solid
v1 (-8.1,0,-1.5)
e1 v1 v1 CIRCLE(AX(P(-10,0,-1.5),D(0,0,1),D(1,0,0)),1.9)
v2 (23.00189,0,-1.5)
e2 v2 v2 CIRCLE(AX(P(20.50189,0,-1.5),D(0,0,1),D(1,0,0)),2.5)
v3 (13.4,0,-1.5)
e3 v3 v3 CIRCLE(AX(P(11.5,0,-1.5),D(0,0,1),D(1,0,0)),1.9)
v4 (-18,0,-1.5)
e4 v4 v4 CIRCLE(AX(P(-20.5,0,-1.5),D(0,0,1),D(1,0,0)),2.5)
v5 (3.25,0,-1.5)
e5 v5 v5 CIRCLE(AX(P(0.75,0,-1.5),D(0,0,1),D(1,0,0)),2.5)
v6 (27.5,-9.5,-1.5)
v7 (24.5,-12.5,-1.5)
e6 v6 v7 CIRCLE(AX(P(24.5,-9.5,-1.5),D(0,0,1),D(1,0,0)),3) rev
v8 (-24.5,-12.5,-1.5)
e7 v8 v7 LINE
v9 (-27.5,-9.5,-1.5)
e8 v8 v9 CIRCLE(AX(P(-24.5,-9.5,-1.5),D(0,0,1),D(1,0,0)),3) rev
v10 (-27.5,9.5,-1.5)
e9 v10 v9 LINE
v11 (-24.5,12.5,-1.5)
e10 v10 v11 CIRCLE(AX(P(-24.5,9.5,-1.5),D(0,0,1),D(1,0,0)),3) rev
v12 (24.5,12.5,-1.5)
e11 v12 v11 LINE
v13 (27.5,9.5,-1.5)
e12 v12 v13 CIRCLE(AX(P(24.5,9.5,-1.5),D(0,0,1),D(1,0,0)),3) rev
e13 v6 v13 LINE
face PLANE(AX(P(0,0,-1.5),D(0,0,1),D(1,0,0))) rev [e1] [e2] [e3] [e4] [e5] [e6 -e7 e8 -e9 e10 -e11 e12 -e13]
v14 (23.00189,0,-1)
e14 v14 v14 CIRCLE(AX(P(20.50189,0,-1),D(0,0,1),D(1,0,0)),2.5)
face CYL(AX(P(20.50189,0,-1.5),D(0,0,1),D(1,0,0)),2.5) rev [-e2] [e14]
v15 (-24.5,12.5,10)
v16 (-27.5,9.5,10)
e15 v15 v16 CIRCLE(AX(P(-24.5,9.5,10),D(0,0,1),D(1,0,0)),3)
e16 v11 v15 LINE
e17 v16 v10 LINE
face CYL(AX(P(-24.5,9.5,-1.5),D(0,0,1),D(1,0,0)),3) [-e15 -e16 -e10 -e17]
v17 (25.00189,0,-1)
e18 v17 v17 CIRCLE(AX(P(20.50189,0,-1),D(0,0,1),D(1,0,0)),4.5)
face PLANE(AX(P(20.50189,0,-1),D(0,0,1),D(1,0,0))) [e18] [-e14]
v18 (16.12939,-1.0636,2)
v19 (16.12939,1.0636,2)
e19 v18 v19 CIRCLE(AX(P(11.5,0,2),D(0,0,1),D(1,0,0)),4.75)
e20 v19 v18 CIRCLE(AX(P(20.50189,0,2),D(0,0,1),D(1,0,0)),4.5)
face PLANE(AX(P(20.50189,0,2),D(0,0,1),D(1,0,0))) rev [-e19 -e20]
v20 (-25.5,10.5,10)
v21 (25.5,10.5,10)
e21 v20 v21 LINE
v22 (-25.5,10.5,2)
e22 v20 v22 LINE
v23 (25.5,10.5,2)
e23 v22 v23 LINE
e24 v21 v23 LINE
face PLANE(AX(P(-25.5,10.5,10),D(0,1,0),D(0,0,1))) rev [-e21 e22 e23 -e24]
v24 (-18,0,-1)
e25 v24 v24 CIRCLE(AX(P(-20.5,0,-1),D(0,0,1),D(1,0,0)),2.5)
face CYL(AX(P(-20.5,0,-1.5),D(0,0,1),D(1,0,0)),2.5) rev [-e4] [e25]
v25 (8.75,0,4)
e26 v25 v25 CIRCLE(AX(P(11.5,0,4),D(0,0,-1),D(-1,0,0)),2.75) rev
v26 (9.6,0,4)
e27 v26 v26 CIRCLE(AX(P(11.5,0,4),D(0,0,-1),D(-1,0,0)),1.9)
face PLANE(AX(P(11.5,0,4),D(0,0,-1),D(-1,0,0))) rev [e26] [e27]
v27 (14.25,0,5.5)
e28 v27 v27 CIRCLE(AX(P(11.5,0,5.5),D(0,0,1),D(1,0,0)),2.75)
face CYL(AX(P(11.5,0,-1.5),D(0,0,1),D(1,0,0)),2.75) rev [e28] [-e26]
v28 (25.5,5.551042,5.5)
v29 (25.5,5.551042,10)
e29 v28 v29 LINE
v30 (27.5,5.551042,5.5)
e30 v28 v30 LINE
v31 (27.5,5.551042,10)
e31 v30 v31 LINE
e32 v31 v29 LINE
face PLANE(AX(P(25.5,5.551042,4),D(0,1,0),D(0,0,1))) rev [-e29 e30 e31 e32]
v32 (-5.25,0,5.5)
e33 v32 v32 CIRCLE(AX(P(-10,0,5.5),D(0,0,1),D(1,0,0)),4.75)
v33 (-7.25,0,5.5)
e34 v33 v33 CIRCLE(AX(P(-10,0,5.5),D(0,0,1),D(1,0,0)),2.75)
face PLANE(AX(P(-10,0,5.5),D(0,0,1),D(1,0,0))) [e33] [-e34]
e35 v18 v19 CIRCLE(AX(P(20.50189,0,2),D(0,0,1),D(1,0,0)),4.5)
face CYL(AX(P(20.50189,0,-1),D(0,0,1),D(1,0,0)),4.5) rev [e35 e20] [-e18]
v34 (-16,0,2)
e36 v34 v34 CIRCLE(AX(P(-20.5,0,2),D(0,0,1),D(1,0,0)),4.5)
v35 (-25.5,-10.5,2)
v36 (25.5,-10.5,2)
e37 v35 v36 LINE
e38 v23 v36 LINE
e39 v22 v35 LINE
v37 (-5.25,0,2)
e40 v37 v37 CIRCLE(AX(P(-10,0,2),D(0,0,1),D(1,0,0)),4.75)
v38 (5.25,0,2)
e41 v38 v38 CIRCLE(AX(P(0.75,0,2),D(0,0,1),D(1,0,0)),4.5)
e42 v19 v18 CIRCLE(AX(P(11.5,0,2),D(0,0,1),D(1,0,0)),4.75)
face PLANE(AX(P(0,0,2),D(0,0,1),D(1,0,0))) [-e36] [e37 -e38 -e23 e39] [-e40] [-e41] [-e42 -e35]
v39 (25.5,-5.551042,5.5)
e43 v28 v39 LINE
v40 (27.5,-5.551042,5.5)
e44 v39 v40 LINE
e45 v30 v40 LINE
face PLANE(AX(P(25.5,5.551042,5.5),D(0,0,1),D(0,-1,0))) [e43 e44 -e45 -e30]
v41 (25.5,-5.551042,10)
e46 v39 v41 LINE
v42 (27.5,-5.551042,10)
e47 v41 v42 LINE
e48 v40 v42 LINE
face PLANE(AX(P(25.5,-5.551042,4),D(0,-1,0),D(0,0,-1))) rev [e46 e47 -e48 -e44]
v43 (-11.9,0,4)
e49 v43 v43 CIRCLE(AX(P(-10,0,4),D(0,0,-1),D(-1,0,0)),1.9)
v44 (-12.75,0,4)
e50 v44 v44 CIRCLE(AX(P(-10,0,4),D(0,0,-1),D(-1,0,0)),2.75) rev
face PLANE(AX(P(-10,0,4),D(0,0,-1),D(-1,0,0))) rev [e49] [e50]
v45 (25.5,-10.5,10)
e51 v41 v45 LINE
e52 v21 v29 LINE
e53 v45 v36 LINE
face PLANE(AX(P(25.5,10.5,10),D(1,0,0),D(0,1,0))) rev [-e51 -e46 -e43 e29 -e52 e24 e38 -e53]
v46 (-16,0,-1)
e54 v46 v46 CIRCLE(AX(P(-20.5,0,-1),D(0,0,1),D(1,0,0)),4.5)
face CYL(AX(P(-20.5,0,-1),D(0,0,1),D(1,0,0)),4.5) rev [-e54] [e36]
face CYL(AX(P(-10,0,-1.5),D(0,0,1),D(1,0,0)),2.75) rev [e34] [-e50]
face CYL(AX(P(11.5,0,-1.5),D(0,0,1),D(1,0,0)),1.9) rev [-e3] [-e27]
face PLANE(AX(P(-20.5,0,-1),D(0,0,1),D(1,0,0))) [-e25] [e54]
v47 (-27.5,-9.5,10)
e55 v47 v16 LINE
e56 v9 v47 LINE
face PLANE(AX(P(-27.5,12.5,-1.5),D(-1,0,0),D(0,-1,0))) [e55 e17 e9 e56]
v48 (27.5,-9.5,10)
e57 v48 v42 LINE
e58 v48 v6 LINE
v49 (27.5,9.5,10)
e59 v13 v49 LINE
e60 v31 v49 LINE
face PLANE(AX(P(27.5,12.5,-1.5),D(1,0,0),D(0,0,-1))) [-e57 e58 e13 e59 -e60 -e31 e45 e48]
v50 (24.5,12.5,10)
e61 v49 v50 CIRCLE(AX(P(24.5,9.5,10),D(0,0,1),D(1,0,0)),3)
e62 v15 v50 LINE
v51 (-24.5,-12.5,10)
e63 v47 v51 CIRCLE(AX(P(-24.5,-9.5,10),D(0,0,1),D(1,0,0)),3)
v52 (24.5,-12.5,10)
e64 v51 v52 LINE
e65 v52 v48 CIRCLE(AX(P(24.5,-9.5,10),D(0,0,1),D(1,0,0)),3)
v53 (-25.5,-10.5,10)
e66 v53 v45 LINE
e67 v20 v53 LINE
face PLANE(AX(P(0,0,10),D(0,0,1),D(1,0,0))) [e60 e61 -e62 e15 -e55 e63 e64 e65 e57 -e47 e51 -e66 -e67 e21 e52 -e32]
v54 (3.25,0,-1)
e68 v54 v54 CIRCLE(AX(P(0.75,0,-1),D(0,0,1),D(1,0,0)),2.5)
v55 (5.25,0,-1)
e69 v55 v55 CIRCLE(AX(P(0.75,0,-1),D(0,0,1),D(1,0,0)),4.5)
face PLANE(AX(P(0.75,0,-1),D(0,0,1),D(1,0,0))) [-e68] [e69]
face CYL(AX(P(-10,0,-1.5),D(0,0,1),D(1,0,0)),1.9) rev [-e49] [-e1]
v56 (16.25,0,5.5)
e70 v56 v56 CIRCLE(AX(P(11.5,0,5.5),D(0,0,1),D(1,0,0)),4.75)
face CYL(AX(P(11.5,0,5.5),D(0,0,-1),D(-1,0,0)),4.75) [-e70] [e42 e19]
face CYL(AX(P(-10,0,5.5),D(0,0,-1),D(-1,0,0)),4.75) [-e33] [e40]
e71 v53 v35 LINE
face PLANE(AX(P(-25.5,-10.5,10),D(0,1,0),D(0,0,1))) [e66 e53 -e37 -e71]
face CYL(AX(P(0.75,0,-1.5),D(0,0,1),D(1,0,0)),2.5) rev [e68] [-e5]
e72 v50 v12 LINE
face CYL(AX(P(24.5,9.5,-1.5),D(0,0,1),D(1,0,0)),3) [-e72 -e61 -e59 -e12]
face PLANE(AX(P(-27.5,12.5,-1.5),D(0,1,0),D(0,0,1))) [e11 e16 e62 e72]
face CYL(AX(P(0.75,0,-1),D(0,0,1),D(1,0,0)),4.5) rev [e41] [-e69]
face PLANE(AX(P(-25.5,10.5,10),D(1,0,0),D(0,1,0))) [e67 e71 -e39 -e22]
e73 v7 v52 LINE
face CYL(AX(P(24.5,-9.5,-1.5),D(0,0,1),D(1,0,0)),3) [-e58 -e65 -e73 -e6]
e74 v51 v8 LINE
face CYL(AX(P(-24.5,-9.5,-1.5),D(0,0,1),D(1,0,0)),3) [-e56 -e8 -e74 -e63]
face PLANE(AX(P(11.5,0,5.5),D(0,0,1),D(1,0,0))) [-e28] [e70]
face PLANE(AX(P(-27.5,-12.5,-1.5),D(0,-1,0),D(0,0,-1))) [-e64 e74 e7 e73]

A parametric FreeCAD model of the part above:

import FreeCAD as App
import Part
import Sketcher
Q = App.Units.Quantity


def edges_at(feature, points):
    """Names of the edges that pass closest to the given points."""
    edges = feature.Shape.Edges
    near = lambda p: min(range(len(edges)), key=lambda i: edges[i].distToShape(Part.Vertex(*p))[0])
    return sorted({f"Edge{near(p) + 1}" for p in points})


def add_polygon(sketch, points):
    """Adds a closed chain of lines whose ends are joined by coincident constraints."""
    first, n = sketch.GeometryCount, len(points)
    for a, b in zip(points, points[1:] + points[:1]):
        sketch.addGeometry(Part.LineSegment(App.Vector(*a, 0), App.Vector(*b, 0)), False)
    for i in range(n):
        sketch.addConstraint(Sketcher.Constraint("Coincident", first + i, 2, first + (i + 1) % n, 1))

doc = App.newDocument("Part")
params = doc.addObject("Spreadsheet::Sheet", "Params")
for row, (alias, value) in enumerate([
    ("sketch1_diameter", "5.5 mm"),
    ("sketch1_width", "55 mm"),
    ("sketch1_height", "25 mm"),
    ("pad1_length", "2 mm"),
    ("pad1_length2", "1.5 mm"),
    ("sketch2_diameter", "9.5 mm"),
    ("sketch2_diameter2", "5.5 mm"),
    ("pad2_length", "3.5 mm"),
    ("sketch3_width", "55 mm"),
    ("sketch3_width2", "51 mm"),
    ("sketch3_height", "25 mm"),
    ("sketch3_height2", "21 mm"),
    ("pad3_length", "8 mm"),
    ("fillet_radius", "3 mm"),
    ("sketch4_width", "2 mm"),
    ("pocket1_length", "6 mm"),
    ("sketch5_diameter", "9 mm"),
    ("pocket2_length", "3 mm"),
    ("sketch6_diameter", "5.5 mm"),
    ("pad4_length", "5.5 mm"),
    ("sketch7_diameter", "3.8 mm"),
    ("sketch8_diameter", "5 mm"),
    ("sketch9_height", "1.5 mm"),
    ("pad5_length", "2 mm"),
], start=1):
    params.set(f"A{row}", alias)
    params.set(f"B{row}", "=" + value)
    params.setAlias(f"B{row}", alias)

body = doc.addObject("PartDesign::Body", "Body")

# Sketch on XY plane
sketch1 = doc.addObject("Sketcher::SketchObject", "Sketch")
body.addObject(sketch1)
sketch1.AttachmentSupport = (doc.XY_Plane, [""])
sketch1.MapMode = "FlatFace"
add_polygon(sketch1, [(-27.5, 12.5), (-27.5, -12.5), (27.5, -12.5), (27.5, 12.5)])  # lines 0-3
sketch1.addGeometry(Part.Circle(App.Vector(-10, 0, 0), App.Vector(0, 0, 1), 2.8), False)  # 4
sketch1.addGeometry(Part.Circle(App.Vector(11.5, 0, 0), App.Vector(0, 0, 1), 2.8), False)  # 5
sketch1.addConstraint([
    Sketcher.Constraint("Vertical", 0),
    Sketcher.Constraint("Horizontal", 1),
    Sketcher.Constraint("Vertical", 2),
    Sketcher.Constraint("Horizontal", 3),
    Sketcher.Constraint("Equal", 4, 5),
    Sketcher.Constraint("Symmetric", 0, 2, 2, 2, -1, 1),
    Sketcher.Constraint("PointOnObject", 4, 3, -1),
    Sketcher.Constraint("PointOnObject", 5, 3, -1),
    Sketcher.Constraint("Diameter", 4, Q("5.5 mm")),
    Sketcher.Constraint("DistanceX", 1, 1, 1, 2, Q("55 mm")),
    Sketcher.Constraint("DistanceY", 0, 2, 0, 1, Q("25 mm")),
    Sketcher.Constraint("DistanceX", 4, 3, -1, 1, Q("10 mm")),
    Sketcher.Constraint("DistanceX", 0, 2, 5, 3, Q("39 mm")),
])
sketch1.setExpression("Constraints[12]", "Params.sketch1_diameter")
sketch1.setExpression("Constraints[13]", "Params.sketch1_width")
sketch1.setExpression("Constraints[14]", "Params.sketch1_height")
pad1 = doc.addObject("PartDesign::Pad", "Pad")
body.addObject(pad1)
pad1.Profile = sketch1
pad1.Type = "TwoLengths"
pad1.setExpression("Length", "Params.pad1_length")
pad1.setExpression("Length2", "Params.pad1_length2")

# Sketch on XY plane
sketch2 = doc.addObject("Sketcher::SketchObject", "Sketch001")
body.addObject(sketch2)
sketch2.AttachmentSupport = (doc.XY_Plane, [""])
sketch2.MapMode = "FlatFace"
sketch2.AttachmentOffset = App.Placement(App.Vector(0, 0, 2), App.Rotation())
sketch2.addGeometry([
    Part.Circle(App.Vector(-10, 0, 0), App.Vector(0, 0, 1), 4.8),
    Part.Circle(App.Vector(-10, 0, 0), App.Vector(0, 0, 1), 2.8),
    Part.Circle(App.Vector(11.5, 0, 0), App.Vector(0, 0, 1), 4.8),
    Part.Circle(App.Vector(11.5, 0, 0), App.Vector(0, 0, 1), 2.8),
], False)
sketch2.addConstraint([
    Sketcher.Constraint("Coincident", 1, 3, 0, 3),
    Sketcher.Constraint("Coincident", 3, 3, 2, 3),
    Sketcher.Constraint("Equal", 0, 2),
    Sketcher.Constraint("Equal", 1, 3),
    Sketcher.Constraint("PointOnObject", 0, 3, -1),
    Sketcher.Constraint("PointOnObject", 2, 3, -1),
    Sketcher.Constraint("Diameter", 0, Q("9.5 mm")),
    Sketcher.Constraint("Diameter", 1, Q("5.5 mm")),
    Sketcher.Constraint("DistanceX", 0, 3, -1, 1, Q("10 mm")),
    Sketcher.Constraint("DistanceX", -1, 1, 2, 3, Q("11.5 mm")),
])
sketch2.setExpression("Constraints[6]", "Params.sketch2_diameter")
sketch2.setExpression("Constraints[7]", "Params.sketch2_diameter2")
pad2 = doc.addObject("PartDesign::Pad", "Pad001")
body.addObject(pad2)
pad2.Profile = sketch2
pad2.setExpression("Length", "Params.pad2_length")

# Sketch on XY plane
sketch3 = doc.addObject("Sketcher::SketchObject", "Sketch002")
body.addObject(sketch3)
sketch3.AttachmentSupport = (doc.XY_Plane, [""])
sketch3.MapMode = "FlatFace"
sketch3.AttachmentOffset = App.Placement(App.Vector(0, 0, 2), App.Rotation())
add_polygon(sketch3, [(-28, 12), (-28, -12), (28, -12), (28, 12)])  # lines 0-3
add_polygon(sketch3, [(26, -10), (-26, -10), (-26, 10), (26, 10)])  # lines 4-7
sketch3.addConstraint([
    Sketcher.Constraint("Vertical", 0),
    Sketcher.Constraint("Horizontal", 1),
    Sketcher.Constraint("Vertical", 2),
    Sketcher.Constraint("Horizontal", 3),
    Sketcher.Constraint("Horizontal", 4),
    Sketcher.Constraint("Vertical", 5),
    Sketcher.Constraint("Horizontal", 6),
    Sketcher.Constraint("Vertical", 7),
    Sketcher.Constraint("Symmetric", 0, 2, 2, 2, -1, 1),
    Sketcher.Constraint("Symmetric", 4, 2, 6, 2, -1, 1),
    Sketcher.Constraint("DistanceX", 1, 1, 1, 2, Q("55 mm")),
    Sketcher.Constraint("DistanceX", 4, 2, 4, 1, Q("51 mm")),
    Sketcher.Constraint("DistanceY", 0, 2, 0, 1, Q("25 mm")),
    Sketcher.Constraint("DistanceY", 5, 1, 5, 2, Q("21 mm")),
])
sketch3.setExpression("Constraints[18]", "Params.sketch3_width")
sketch3.setExpression("Constraints[19]", "Params.sketch3_width2")
sketch3.setExpression("Constraints[20]", "Params.sketch3_height")
sketch3.setExpression("Constraints[21]", "Params.sketch3_height2")
pad3 = doc.addObject("PartDesign::Pad", "Pad002")
body.addObject(pad3)
pad3.Profile = sketch3
pad3.setExpression("Length", "Params.pad3_length")
doc.recompute()

fillet = doc.addObject("PartDesign::Fillet", "Fillet")
body.addObject(fillet)
fillet.Base = (pad3, edges_at(pad3, [
    (27.5, -12.5, 4.25),
    (-27.5, -12.5, 4.25),
    (-27.5, 12.5, 4.25),
    (27.5, 12.5, 4.25),
]))
fillet.setExpression("Radius", "Params.fillet_radius")

# Sketch on XY plane
sketch4 = doc.addObject("Sketcher::SketchObject", "Sketch003")
body.addObject(sketch4)
sketch4.AttachmentSupport = (doc.XY_Plane, [""])
sketch4.MapMode = "FlatFace"
sketch4.AttachmentOffset = App.Placement(App.Vector(0, 0, 10), App.Rotation())
add_polygon(sketch4, [(25.5, 5.6), (25.5, -5.6), (27.5, -5.6), (27.5, 5.6)])  # lines 0-3
sketch4.addConstraint([
    Sketcher.Constraint("Vertical", 0),
    Sketcher.Constraint("Horizontal", 1),
    Sketcher.Constraint("Vertical", 2),
    Sketcher.Constraint("Horizontal", 3),
    Sketcher.Constraint("DistanceX", 1, 1, 1, 2, Q("2 mm")),
    Sketcher.Constraint("DistanceX", -1, 1, 0, 2, Q("25.5 mm")),
    Sketcher.Constraint("DistanceY", 0, 2, 0, 1, Q("11.102083 mm")),
    Sketcher.Constraint("DistanceY", 0, 2, -1, 1, Q("5.551042 mm")),
])
sketch4.setExpression("Constraints[8]", "Params.sketch4_width")
pocket1 = doc.addObject("PartDesign::Pocket", "Pocket")
body.addObject(pocket1)
pocket1.Profile = sketch4
pocket1.setExpression("Length", "Params.pocket1_length")

# Sketch on XY plane
sketch5 = doc.addObject("Sketcher::SketchObject", "Sketch004")
body.addObject(sketch5)
sketch5.AttachmentSupport = (doc.XY_Plane, [""])
sketch5.MapMode = "FlatFace"
sketch5.AttachmentOffset = App.Placement(App.Vector(0, 0, 2), App.Rotation())
sketch5.addGeometry([
    Part.Circle(App.Vector(0.8, 0, 0), App.Vector(0, 0, 1), 4.5),
    Part.Circle(App.Vector(-20.5, 0, 0), App.Vector(0, 0, 1), 4.5),
    Part.Circle(App.Vector(20.5, 0, 0), App.Vector(0, 0, 1), 4.5),
], False)
sketch5.addConstraint([
    Sketcher.Constraint("Equal", 0, 1),
    Sketcher.Constraint("Equal", 1, 2),
    Sketcher.Constraint("PointOnObject", 0, 3, -1),
    Sketcher.Constraint("PointOnObject", 1, 3, -1),
    Sketcher.Constraint("PointOnObject", 2, 3, -1),
    Sketcher.Constraint("Diameter", 0, Q("9 mm")),
    Sketcher.Constraint("DistanceX", 1, 3, -1, 1, Q("20.5 mm")),
    Sketcher.Constraint("DistanceX", -1, 1, 0, 3, Q("0.75 mm")),
    Sketcher.Constraint("DistanceX", -1, 1, 2, 3, Q("20.50189 mm")),
])
sketch5.setExpression("Constraints[5]", "Params.sketch5_diameter")
pocket2 = doc.addObject("PartDesign::Pocket", "Pocket001")
body.addObject(pocket2)
pocket2.Profile = sketch5
pocket2.setExpression("Length", "Params.pocket2_length")

# Sketch on XY plane
sketch6 = doc.addObject("Sketcher::SketchObject", "Sketch005")
body.addObject(sketch6)
sketch6.AttachmentSupport = (doc.XY_Plane, [""])
sketch6.MapMode = "FlatFace"
sketch6.AttachmentOffset = App.Placement(App.Vector(0, 0, -1.5), App.Rotation())
sketch6.addGeometry([
    Part.Circle(App.Vector(11.5, 0, 0), App.Vector(0, 0, 1), 2.8),
    Part.Circle(App.Vector(-10, 0, 0), App.Vector(0, 0, 1), 2.8),
], False)
sketch6.addConstraint([
    Sketcher.Constraint("Equal", 0, 1),
    Sketcher.Constraint("PointOnObject", 0, 3, -1),
    Sketcher.Constraint("PointOnObject", 1, 3, -1),
    Sketcher.Constraint("Diameter", 0, Q("5.5 mm")),
    Sketcher.Constraint("DistanceX", 1, 3, -1, 1, Q("10 mm")),
    Sketcher.Constraint("DistanceX", -1, 1, 0, 3, Q("11.5 mm")),
])
sketch6.setExpression("Constraints[3]", "Params.sketch6_diameter")
pad4 = doc.addObject("PartDesign::Pad", "Pad003")
body.addObject(pad4)
pad4.Profile = sketch6
pad4.setExpression("Length", "Params.pad4_length")

# Sketch on XY plane
sketch7 = doc.addObject("Sketcher::SketchObject", "Sketch006")
body.addObject(sketch7)
sketch7.AttachmentSupport = (doc.XY_Plane, [""])
sketch7.MapMode = "FlatFace"
sketch7.AttachmentOffset = App.Placement(App.Vector(0, 0, 2), App.Rotation())
sketch7.addGeometry([
    Part.Circle(App.Vector(-10, 0, 0), App.Vector(0, 0, 1), 1.9),
    Part.Circle(App.Vector(11.5, 0, 0), App.Vector(0, 0, 1), 1.9),
], False)
sketch7.addConstraint([
    Sketcher.Constraint("Equal", 0, 1),
    Sketcher.Constraint("PointOnObject", 0, 3, -1),
    Sketcher.Constraint("PointOnObject", 1, 3, -1),
    Sketcher.Constraint("Diameter", 0, Q("3.8 mm")),
    Sketcher.Constraint("DistanceX", 0, 3, -1, 1, Q("10 mm")),
    Sketcher.Constraint("DistanceX", -1, 1, 1, 3, Q("11.5 mm")),
])
sketch7.setExpression("Constraints[3]", "Params.sketch7_diameter")
pocket3 = doc.addObject("PartDesign::Pocket", "Pocket002")
body.addObject(pocket3)
pocket3.Profile = sketch7
pocket3.Type = "ThroughAll"
pocket3.Midplane = True

# Sketch on XY plane
sketch8 = doc.addObject("Sketcher::SketchObject", "Sketch007")
body.addObject(sketch8)
sketch8.AttachmentSupport = (doc.XY_Plane, [""])
sketch8.MapMode = "FlatFace"
sketch8.AttachmentOffset = App.Placement(App.Vector(0, 0, 2), App.Rotation())
sketch8.addGeometry([
    Part.Circle(App.Vector(20.5, 0, 0), App.Vector(0, 0, 1), 2.5),
    Part.Circle(App.Vector(0.8, 0, 0), App.Vector(0, 0, 1), 2.5),
    Part.Circle(App.Vector(-20.5, 0, 0), App.Vector(0, 0, 1), 2.5),
], False)
sketch8.addConstraint([
    Sketcher.Constraint("Equal", 0, 1),
    Sketcher.Constraint("Equal", 1, 2),
    Sketcher.Constraint("PointOnObject", 0, 3, -1),
    Sketcher.Constraint("PointOnObject", 1, 3, -1),
    Sketcher.Constraint("PointOnObject", 2, 3, -1),
    Sketcher.Constraint("Diameter", 0, Q("5 mm")),
    Sketcher.Constraint("DistanceX", 2, 3, -1, 1, Q("20.5 mm")),
    Sketcher.Constraint("DistanceX", -1, 1, 1, 3, Q("0.75 mm")),
    Sketcher.Constraint("DistanceX", -1, 1, 0, 3, Q("20.50189 mm")),
])
sketch8.setExpression("Constraints[5]", "Params.sketch8_diameter")
pocket4 = doc.addObject("PartDesign::Pocket", "Pocket003")
body.addObject(pocket4)
pocket4.Profile = sketch8
pocket4.Type = "ThroughAll"

# Sketch on YZ plane
sketch9 = doc.addObject("Sketcher::SketchObject", "Sketch008")
body.addObject(sketch9)
sketch9.AttachmentSupport = (doc.YZ_Plane, [""])
sketch9.MapMode = "FlatFace"
sketch9.AttachmentOffset = App.Placement(App.Vector(0, 0, 27.5), App.Rotation())
add_polygon(sketch9, [(5.6, 5.5), (-5.6, 5.5), (-5.6, 4), (5.6, 4)])  # lines 0-3
sketch9.addConstraint([
    Sketcher.Constraint("Horizontal", 0),
    Sketcher.Constraint("Vertical", 1),
    Sketcher.Constraint("Horizontal", 2),
    Sketcher.Constraint("Vertical", 3),
    Sketcher.Constraint("DistanceY", 1, 2, 1, 1, Q("1.5 mm")),
    Sketcher.Constraint("DistanceY", -1, 1, 1, 2, Q("4 mm")),
    Sketcher.Constraint("DistanceX", 0, 2, 0, 1, Q("11.102083 mm")),
    Sketcher.Constraint("DistanceX", 0, 2, -1, 1, Q("5.551042 mm")),
])
sketch9.setExpression("Constraints[8]", "Params.sketch9_height")
pad5 = doc.addObject("PartDesign::Pad", "Pad004")
body.addObject(pad5)
pad5.Profile = sketch9
pad5.setExpression("Length", "Params.pad5_length")
pad5.Reversed = True

doc.recompute()
